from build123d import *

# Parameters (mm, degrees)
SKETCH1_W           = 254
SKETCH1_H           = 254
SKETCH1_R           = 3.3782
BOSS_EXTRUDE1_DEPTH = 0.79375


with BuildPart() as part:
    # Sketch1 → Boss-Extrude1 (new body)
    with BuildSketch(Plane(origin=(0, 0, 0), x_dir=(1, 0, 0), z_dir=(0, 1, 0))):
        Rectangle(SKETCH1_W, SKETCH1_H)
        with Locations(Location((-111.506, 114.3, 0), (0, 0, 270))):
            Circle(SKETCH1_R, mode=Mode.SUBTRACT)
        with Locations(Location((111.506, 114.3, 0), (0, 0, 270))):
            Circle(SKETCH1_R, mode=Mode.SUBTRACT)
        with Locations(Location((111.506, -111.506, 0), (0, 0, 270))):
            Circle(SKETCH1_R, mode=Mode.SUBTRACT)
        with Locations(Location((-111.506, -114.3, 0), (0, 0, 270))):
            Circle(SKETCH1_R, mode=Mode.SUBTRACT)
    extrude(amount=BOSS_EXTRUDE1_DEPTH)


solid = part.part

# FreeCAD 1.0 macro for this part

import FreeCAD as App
import Part
import Sketcher

V = App.Vector
Q = App.Units.Quantity


def add_polygon(sketch, points):
    """Adds a closed chain of lines whose ends are joined by coincident constraints."""
    first, n = sketch.GeometryCount, len(points)
    for a, b in zip(points, points[1:] + points[:1]):
        sketch.addGeometry(Part.LineSegment(App.Vector(*a, 0), App.Vector(*b, 0)), False)
    for i in range(n):
        sketch.addConstraint(Sketcher.Constraint("Coincident", first + i, 2, first + (i + 1) % n, 1))

doc = App.newDocument("Part")
body = doc.addObject("PartDesign::Body", "Body")

sketch1 = body.newObject("Sketcher::SketchObject", "Sketch")
sketch1.AttachmentSupport = (doc.getObject("XZ_Plane"), [""])
sketch1.MapMode = "FlatFace"
add_polygon(sketch1, [(-127, -127), (-127, 127), (127, 127), (127, -127)])
sketch1.addGeometry(Part.Circle(V(-111.506, 114.3, 0), V(0, 0, 1), 3.3782), False)
sketch1.addGeometry(Part.Circle(V(111.506, 111.506, 0), V(0, 0, 1), 3.3782), False)
sketch1.addGeometry(Part.Circle(V(-111.506, -114.3, 0), V(0, 0, 1), 3.3782), False)
sketch1.addGeometry(Part.Circle(V(111.506, -114.3, 0), V(0, 0, 1), 3.3782), False)
sketch1.addConstraint(Sketcher.Constraint("Vertical", 0))
sketch1.addConstraint(Sketcher.Constraint("Horizontal", 1))
sketch1.addConstraint(Sketcher.Constraint("Vertical", 2))
sketch1.addConstraint(Sketcher.Constraint("Horizontal", 3))
sketch1.addConstraint(Sketcher.Constraint("Equal", 4, 5))
sketch1.addConstraint(Sketcher.Constraint("Equal", 5, 6))
sketch1.addConstraint(Sketcher.Constraint("Equal", 6, 7))
sketch1.addConstraint(Sketcher.Constraint("Symmetric", 4, 3, 7, 3, -1, 1))
sketch1.addConstraint(Sketcher.Constraint("Symmetric", 0, 2, 2, 2, -1, 1))
sketch1.addConstraint(Sketcher.Constraint("Symmetric", 6, 3, 7, 3, -2))
sketch1.addConstraint(Sketcher.Constraint("Vertical", 5, 3, 7, 3))
sketch1.addConstraint(Sketcher.Constraint("Equal", 3, 0))
sketch1.addConstraint(Sketcher.Constraint("DistanceX", 1, 1, 1, 2, Q("10 in")))
sketch1.addConstraint(Sketcher.Constraint("Diameter", 4, Q("0.266 in")))
sketch1.addConstraint(Sketcher.Constraint("DistanceY", 6, 3, 4, 3, Q("9 in")))
sketch1.addConstraint(Sketcher.Constraint("DistanceX", 4, 3, -1, 1, Q("4.39 in")))
sketch1.addConstraint(Sketcher.Constraint("DistanceY", -1, 1, 5, 3, Q("4.39 in")))
pad1 = body.newObject("PartDesign::Pad", "Pad")
pad1.Profile = sketch1
pad1.Length = Q("0.03125 in")
pad1.Reversed = True

doc.recompute()
